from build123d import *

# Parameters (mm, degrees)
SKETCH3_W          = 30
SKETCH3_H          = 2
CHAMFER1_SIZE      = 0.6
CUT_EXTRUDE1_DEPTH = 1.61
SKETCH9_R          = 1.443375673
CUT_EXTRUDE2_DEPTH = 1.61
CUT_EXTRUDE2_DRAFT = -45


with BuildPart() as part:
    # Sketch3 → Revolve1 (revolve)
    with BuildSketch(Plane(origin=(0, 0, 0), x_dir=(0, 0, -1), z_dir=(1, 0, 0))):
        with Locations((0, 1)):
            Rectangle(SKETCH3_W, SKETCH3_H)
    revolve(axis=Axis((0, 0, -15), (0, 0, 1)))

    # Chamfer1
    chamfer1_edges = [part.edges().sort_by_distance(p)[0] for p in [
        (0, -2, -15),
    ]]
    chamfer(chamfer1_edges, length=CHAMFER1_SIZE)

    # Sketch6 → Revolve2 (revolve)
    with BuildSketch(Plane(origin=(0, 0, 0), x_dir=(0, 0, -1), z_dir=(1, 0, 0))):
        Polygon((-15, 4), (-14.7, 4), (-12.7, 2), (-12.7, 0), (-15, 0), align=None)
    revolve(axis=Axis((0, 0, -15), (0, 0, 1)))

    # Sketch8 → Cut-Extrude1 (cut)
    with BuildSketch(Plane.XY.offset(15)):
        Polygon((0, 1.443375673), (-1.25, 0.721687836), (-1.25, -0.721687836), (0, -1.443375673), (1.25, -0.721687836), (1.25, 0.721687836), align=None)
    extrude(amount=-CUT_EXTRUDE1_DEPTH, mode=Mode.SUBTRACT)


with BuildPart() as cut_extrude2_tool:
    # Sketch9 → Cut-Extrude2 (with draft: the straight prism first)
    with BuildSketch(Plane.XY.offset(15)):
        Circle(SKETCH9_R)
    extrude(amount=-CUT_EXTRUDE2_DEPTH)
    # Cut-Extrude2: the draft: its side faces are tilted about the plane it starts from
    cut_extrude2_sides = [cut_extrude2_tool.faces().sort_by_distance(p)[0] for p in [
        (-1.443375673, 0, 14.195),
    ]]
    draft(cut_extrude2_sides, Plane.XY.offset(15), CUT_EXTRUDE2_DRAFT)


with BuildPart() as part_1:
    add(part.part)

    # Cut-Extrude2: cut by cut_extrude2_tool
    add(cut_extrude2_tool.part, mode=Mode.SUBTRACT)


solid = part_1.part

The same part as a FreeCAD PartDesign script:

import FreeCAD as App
import Part
import Sketcher

V = App.Vector
Q = App.Units.Quantity


def edges_at(feature, points):
    """Names of the edges that pass closest to the given points."""
    edges = feature.Shape.Edges
    near = lambda p: min(range(len(edges)), key=lambda i: edges[i].distToShape(Part.Vertex(*p))[0])
    return sorted({f"Edge{near(p) + 1}" for p in points})


def faces_at(feature, points):
    """Names of the faces that lie closest to the given points."""
    faces = feature.Shape.Faces
    near = lambda p: min(range(len(faces)), key=lambda i: faces[i].distToShape(Part.Vertex(*p))[0])
    return sorted({f"Face{near(p) + 1}" for p in points})

doc = App.newDocument("Part")
body = doc.addObject("PartDesign::Body", "Body")

# Sketch on YZ plane
sketch1 = body.newObject("Sketcher::SketchObject", "Sketch")
sketch1.AttachmentSupport = (doc.getObject("YZ_Plane"), [""])
sketch1.MapMode = "FlatFace"
sketch1.addGeometry(Part.LineSegment(V(2, 15, 0), V(0, 15, 0)), False)
sketch1.addGeometry(Part.LineSegment(V(0, 15, 0), V(0, -15, 0)), False)
sketch1.addGeometry(Part.LineSegment(V(0, -15, 0), V(2, -15, 0)), False)
sketch1.addGeometry(Part.LineSegment(V(2, -15, 0), V(2, 15, 0)), False)
sketch1.addConstraint(Sketcher.Constraint("Coincident", 0, 2, 1, 1))
sketch1.addConstraint(Sketcher.Constraint("Coincident", 1, 2, 2, 1))
sketch1.addConstraint(Sketcher.Constraint("Coincident", 2, 2, 3, 1))
sketch1.addConstraint(Sketcher.Constraint("Coincident", 3, 2, 0, 1))
sketch1.addConstraint(Sketcher.Constraint("Horizontal", 0))
sketch1.addConstraint(Sketcher.Constraint("Vertical", 1))
sketch1.addConstraint(Sketcher.Constraint("Horizontal", 2))
sketch1.addConstraint(Sketcher.Constraint("Vertical", 3))
sketch1.addConstraint(Sketcher.Constraint("Symmetric", 0, 2, 1, 2, -1, 1))
sketch1.addConstraint(Sketcher.Constraint("DistanceX", 0, 2, 0, 1, Q("2 mm")))
sketch1.addConstraint(Sketcher.Constraint("DistanceY", 1, 2, 1, 1, Q("30 mm")))
revolution = body.newObject("PartDesign::Revolution", "Revolution")
revolution.Profile = sketch1
revolution.ReferenceAxis = (sketch1, ["V_Axis"])
revolution.Angle = 360
doc.recompute()

chamfer = body.newObject("PartDesign::Chamfer", "Chamfer")
chamfer.Base = (revolution, edges_at(revolution, [(0, -2, -15)]))
chamfer.Size = 0.6

# Sketch on YZ plane
sketch2 = body.newObject("Sketcher::SketchObject", "Sketch001")
sketch2.AttachmentSupport = (doc.getObject("YZ_Plane"), [""])
sketch2.MapMode = "FlatFace"
sketch2.addGeometry(Part.LineSegment(V(4, 14.7, 0), V(4, 15, 0)), False)
sketch2.addGeometry(Part.LineSegment(V(4, 15, 0), V(0, 15, 0)), False)
sketch2.addGeometry(Part.LineSegment(V(0, 15, 0), V(0, 12.7, 0)), False)
sketch2.addGeometry(Part.LineSegment(V(0, 12.7, 0), V(2, 12.7, 0)), False)
sketch2.addGeometry(Part.LineSegment(V(2, 12.7, 0), V(4, 14.7, 0)), False)
sketch2.addConstraint(Sketcher.Constraint("Coincident", 0, 2, 1, 1))
sketch2.addConstraint(Sketcher.Constraint("Coincident", 1, 2, 2, 1))
sketch2.addConstraint(Sketcher.Constraint("Coincident", 2, 2, 3, 1))
sketch2.addConstraint(Sketcher.Constraint("Coincident", 3, 2, 4, 1))
sketch2.addConstraint(Sketcher.Constraint("Coincident", 4, 2, 0, 1))
sketch2.addConstraint(Sketcher.Constraint("Vertical", 0))
sketch2.addConstraint(Sketcher.Constraint("Horizontal", 1))
sketch2.addConstraint(Sketcher.Constraint("Vertical", 2))
sketch2.addConstraint(Sketcher.Constraint("Horizontal", 3))
sketch2.addConstraint(Sketcher.Constraint("PointOnObject", 1, 2, -2))
sketch2.addConstraint(Sketcher.Constraint("DistanceX", 1, 2, 1, 1, Q("4 mm")))
sketch2.addConstraint(Sketcher.Constraint("DistanceX", 3, 1, 3, 2, Q("2 mm")))
sketch2.addConstraint(Sketcher.Constraint("Angle", 4, Q("45 deg")))
sketch2.addConstraint(Sketcher.Constraint("DistanceY", 0, 1, 0, 2, Q("0.3 mm")))
sketch2.addConstraint(Sketcher.Constraint("DistanceY", -1, 1, 0, 2, Q("15 mm")))
revolution2 = body.newObject("PartDesign::Revolution", "Revolution001")
revolution2.Profile = sketch2
revolution2.ReferenceAxis = (sketch2, ["V_Axis"])
revolution2.Angle = 360

# Sketch on XY plane
sketch3 = body.newObject("Sketcher::SketchObject", "Sketch002")
sketch3.AttachmentSupport = (doc.getObject("XY_Plane"), [""])
sketch3.MapMode = "FlatFace"
sketch3.AttachmentOffset = App.Placement(V(0, 0, 15), App.Rotation())
sketch3.addGeometry(Part.LineSegment(V(0, 1.4, 0), V(-1.2, 0.7, 0)), False)
sketch3.addGeometry(Part.LineSegment(V(-1.2, 0.7, 0), V(-1.2, -0.7, 0)), False)
sketch3.addGeometry(Part.LineSegment(V(-1.2, -0.7, 0), V(0, -1.4, 0)), False)
sketch3.addGeometry(Part.LineSegment(V(0, -1.4, 0), V(1.2, -0.7, 0)), False)
sketch3.addGeometry(Part.LineSegment(V(1.2, -0.7, 0), V(1.2, 0.7, 0)), False)
sketch3.addGeometry(Part.LineSegment(V(1.2, 0.7, 0), V(0, 1.4, 0)), False)
sketch3.addConstraint(Sketcher.Constraint("Coincident", 0, 2, 1, 1))
sketch3.addConstraint(Sketcher.Constraint("Coincident", 1, 2, 2, 1))
sketch3.addConstraint(Sketcher.Constraint("Coincident", 2, 2, 3, 1))
sketch3.addConstraint(Sketcher.Constraint("Coincident", 3, 2, 4, 1))
sketch3.addConstraint(Sketcher.Constraint("Coincident", 4, 2, 5, 1))
sketch3.addConstraint(Sketcher.Constraint("Coincident", 5, 2, 0, 1))
sketch3.addConstraint(Sketcher.Constraint("Vertical", 1))
sketch3.addConstraint(Sketcher.Constraint("Vertical", 4))
sketch3.addConstraint(Sketcher.Constraint("Symmetric", 0, 2, 3, 2, -1, 1))
sketch3.addConstraint(Sketcher.Constraint("Symmetric", 2, 2, 5, 2, -1, 1))
sketch3.addConstraint(Sketcher.Constraint("PointOnObject", 2, 2, -2))
sketch3.addConstraint(Sketcher.Constraint("Parallel", 2, 5))
sketch3.addConstraint(Sketcher.Constraint("Horizontal", 1, 2, 3, 2))
sketch3.addConstraint(Sketcher.Constraint("Angle", 0, Q("-150 deg")))
sketch3.addConstraint(Sketcher.Constraint("DistanceX", 1, 2, 3, 2, Q("2.5 mm")))
sketch3.addConstraint(Sketcher.Constraint("DistanceY", 1, 2, 1, 1, Q("1.443376 mm")))
pocket1 = body.newObject("PartDesign::Pocket", "Pocket")
pocket1.Profile = sketch3
pocket1.Length = 1.61
body2 = doc.addObject("PartDesign::Body", "Body001")

# Sketch on XY plane
sketch4 = body2.newObject("Sketcher::SketchObject", "Sketch003")
sketch4.AttachmentSupport = (doc.getObject("XY_Plane001"), [""])
sketch4.MapMode = "FlatFace"
sketch4.AttachmentOffset = App.Placement(V(0, 0, 15), App.Rotation())
sketch4.addGeometry(Part.Circle(V(0, 0, 0), V(0, 0, 1), 1.4), False)
sketch4.addConstraint(Sketcher.Constraint("Coincident", 0, 3, -1, 1))
sketch4.addConstraint(Sketcher.Constraint("Diameter", 0, Q("2.886751 mm")))
pad1 = body2.newObject("PartDesign::Pad", "Pad")
pad1.Profile = sketch4
pad1.Length = 1.61
pad1.Reversed = True
doc.recompute()

datumplane = body2.newObject("PartDesign::Plane", "DatumPlane")
datumplane.AttachmentSupport = (doc.getObject("XY_Plane001"), [""])
datumplane.MapMode = "FlatFace"
datumplane.AttachmentOffset = App.Placement(V(0, 0, 15), App.Rotation())
draft = body2.newObject("PartDesign::Draft", "Draft")
draft.Base = (pad1, faces_at(pad1, [(-1.443, 0, 14.195)]))
draft.NeutralPlane = (datumplane, [""])
draft.Angle = 45
draft.Reversed = True
doc.recompute()

boolean = body.newObject("PartDesign::Boolean", "Boolean")
boolean.Type = "Cut"
boolean.addObjects([body2])

doc.recompute()
